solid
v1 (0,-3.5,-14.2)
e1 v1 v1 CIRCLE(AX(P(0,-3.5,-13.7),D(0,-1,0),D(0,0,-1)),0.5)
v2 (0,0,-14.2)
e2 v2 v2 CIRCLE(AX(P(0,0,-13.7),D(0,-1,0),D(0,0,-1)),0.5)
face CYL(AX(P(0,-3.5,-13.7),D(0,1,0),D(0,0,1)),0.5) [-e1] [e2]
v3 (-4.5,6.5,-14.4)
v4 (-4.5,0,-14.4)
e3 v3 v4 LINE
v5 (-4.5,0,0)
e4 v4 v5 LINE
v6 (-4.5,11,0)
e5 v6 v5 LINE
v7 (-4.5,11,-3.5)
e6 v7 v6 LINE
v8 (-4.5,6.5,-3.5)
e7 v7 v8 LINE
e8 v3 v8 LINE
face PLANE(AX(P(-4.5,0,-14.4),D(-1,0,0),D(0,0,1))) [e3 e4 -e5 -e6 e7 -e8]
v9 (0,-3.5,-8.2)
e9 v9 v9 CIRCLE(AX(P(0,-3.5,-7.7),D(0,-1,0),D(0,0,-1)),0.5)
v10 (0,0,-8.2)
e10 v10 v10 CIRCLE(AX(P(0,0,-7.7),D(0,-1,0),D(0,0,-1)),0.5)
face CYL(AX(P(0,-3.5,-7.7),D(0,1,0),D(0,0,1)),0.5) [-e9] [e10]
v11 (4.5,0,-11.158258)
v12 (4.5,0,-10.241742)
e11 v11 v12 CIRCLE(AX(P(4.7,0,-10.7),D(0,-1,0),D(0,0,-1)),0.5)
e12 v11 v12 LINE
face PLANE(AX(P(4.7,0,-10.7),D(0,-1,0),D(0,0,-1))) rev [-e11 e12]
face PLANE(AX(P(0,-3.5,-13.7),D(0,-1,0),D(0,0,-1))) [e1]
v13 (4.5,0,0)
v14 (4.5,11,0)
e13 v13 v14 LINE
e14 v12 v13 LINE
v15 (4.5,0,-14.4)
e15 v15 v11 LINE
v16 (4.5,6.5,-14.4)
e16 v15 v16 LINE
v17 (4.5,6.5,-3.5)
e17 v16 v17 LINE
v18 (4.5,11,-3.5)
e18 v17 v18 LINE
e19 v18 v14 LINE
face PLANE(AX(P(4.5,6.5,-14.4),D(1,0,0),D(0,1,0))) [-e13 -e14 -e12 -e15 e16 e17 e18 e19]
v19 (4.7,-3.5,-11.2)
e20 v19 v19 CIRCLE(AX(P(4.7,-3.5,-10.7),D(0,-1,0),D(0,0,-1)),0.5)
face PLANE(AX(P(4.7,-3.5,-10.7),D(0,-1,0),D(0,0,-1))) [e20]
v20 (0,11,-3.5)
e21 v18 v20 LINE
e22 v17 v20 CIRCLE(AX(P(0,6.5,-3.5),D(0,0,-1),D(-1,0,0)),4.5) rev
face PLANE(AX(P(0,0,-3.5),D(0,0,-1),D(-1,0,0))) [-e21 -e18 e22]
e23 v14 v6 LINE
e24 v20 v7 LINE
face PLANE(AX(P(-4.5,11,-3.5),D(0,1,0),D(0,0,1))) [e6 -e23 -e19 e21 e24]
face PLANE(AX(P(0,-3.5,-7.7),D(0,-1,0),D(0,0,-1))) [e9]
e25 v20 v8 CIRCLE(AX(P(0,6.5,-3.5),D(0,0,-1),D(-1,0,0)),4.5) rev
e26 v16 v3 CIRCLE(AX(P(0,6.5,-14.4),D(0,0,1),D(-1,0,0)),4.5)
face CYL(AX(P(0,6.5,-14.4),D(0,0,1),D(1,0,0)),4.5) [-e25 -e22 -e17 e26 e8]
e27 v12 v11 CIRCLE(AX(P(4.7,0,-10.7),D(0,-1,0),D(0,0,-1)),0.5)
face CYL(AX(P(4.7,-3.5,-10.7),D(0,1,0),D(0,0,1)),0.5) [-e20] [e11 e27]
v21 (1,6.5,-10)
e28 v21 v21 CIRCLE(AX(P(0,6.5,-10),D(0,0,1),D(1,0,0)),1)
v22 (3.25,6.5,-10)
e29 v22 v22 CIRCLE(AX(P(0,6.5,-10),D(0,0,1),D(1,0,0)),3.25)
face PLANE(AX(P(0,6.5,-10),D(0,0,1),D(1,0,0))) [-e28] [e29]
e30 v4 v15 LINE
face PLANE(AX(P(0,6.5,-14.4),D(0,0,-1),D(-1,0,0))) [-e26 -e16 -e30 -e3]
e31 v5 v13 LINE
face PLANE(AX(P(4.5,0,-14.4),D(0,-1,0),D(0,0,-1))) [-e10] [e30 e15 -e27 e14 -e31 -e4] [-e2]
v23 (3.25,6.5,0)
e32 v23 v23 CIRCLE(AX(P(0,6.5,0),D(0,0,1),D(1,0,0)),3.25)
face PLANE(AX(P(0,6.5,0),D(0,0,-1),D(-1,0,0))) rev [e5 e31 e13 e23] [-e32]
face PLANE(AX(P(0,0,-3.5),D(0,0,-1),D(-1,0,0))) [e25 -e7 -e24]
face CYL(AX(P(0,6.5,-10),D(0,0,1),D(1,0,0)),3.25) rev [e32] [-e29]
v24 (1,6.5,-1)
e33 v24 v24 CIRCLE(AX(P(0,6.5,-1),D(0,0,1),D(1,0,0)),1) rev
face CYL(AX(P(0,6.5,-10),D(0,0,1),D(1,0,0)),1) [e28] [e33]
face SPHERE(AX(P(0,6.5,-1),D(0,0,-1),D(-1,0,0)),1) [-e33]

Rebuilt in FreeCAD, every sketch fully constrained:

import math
import FreeCAD as App
import Part
import Sketcher
Q = App.Units.Quantity


def edges_at(feature, points):
    """Names of the edges that pass closest to the given points."""
    edges = feature.Shape.Edges
    near = lambda p: min(range(len(edges)), key=lambda i: edges[i].distToShape(Part.Vertex(*p))[0])
    return sorted({f"Edge{near(p) + 1}" for p in points})


def add_polygon(sketch, points):
    """Adds a closed chain of lines whose ends are joined by coincident constraints."""
    first, n = sketch.GeometryCount, len(points)
    for a, b in zip(points, points[1:] + points[:1]):
        sketch.addGeometry(Part.LineSegment(App.Vector(*a, 0), App.Vector(*b, 0)), False)
    for i in range(n):
        sketch.addConstraint(Sketcher.Constraint("Coincident", first + i, 2, first + (i + 1) % n, 1))

doc = App.newDocument("Part")
body = doc.addObject("PartDesign::Body", "Body")

sketch1 = body.newObject("Sketcher::SketchObject", "Sketch")
sketch1.AttachmentSupport = (doc.getObject("XY_Plane"), [""])
sketch1.MapMode = "FlatFace"
sketch1.addGeometry(Part.LineSegment(App.Vector(-4.5, 0, 0), App.Vector(4.5, 0, 0)), False)
sketch1.addGeometry(Part.LineSegment(App.Vector(4.5, 0, 0), App.Vector(4.5, 6.5, 0)), False)
sketch1.addGeometry(Part.ArcOfCircle(Part.Circle(App.Vector(0, 6.5, 0), App.Vector(0, 0, 1), 4.5), math.radians(0), math.radians(180)), False)
sketch1.addGeometry(Part.LineSegment(App.Vector(-4.5, 6.5, 0), App.Vector(-4.5, 0, 0)), False)
sketch1.addConstraint(Sketcher.Constraint("Coincident", 0, 2, 1, 1))
sketch1.addConstraint(Sketcher.Constraint("Tangent", 1, 2, 2, 1))
sketch1.addConstraint(Sketcher.Constraint("Tangent", 2, 2, 3, 1))
sketch1.addConstraint(Sketcher.Constraint("Coincident", 3, 2, 0, 1))
sketch1.addConstraint(Sketcher.Constraint("Horizontal", 0))
sketch1.addConstraint(Sketcher.Constraint("Vertical", 1))
sketch1.addConstraint(Sketcher.Constraint("Vertical", 3))
sketch1.addConstraint(Sketcher.Constraint("Symmetric", 0, 2, 3, 2, -1, 1))
sketch1.addConstraint(Sketcher.Constraint("Radius", 2, Q("4.5 mm")))
sketch1.addConstraint(Sketcher.Constraint("DistanceY", 1, 1, 1, 2, Q("6.5 mm")))
pad1 = body.newObject("PartDesign::Pad", "Pad")
pad1.Profile = sketch1
pad1.Length = 14.4
pad1.Reversed = True

sketch2 = body.newObject("Sketcher::SketchObject", "Sketch001")
sketch2.AttachmentSupport = (doc.getObject("XY_Plane"), [""])
sketch2.MapMode = "FlatFace"
add_polygon(sketch2, [(-4.5, 11), (-4.5, 6.5), (4.5, 6.5), (4.5, 11)])
sketch2.addConstraint(Sketcher.Constraint("Vertical", 0))
sketch2.addConstraint(Sketcher.Constraint("Horizontal", 1))
sketch2.addConstraint(Sketcher.Constraint("Vertical", 2))
sketch2.addConstraint(Sketcher.Constraint("Horizontal", 3))
sketch2.addConstraint(Sketcher.Constraint("DistanceX", 1, 1, 1, 2, Q("9 mm")))
sketch2.addConstraint(Sketcher.Constraint("DistanceY", 0, 2, 0, 1, Q("4.5 mm")))
sketch2.addConstraint(Sketcher.Constraint("DistanceY", -1, 1, 2, 2, Q("11 mm")))
sketch2.addConstraint(Sketcher.Constraint("DistanceX", 0, 2, -1, 1, Q("4.5 mm")))
pad2 = body.newObject("PartDesign::Pad", "Pad001")
pad2.Profile = sketch2
pad2.Length = 3.5
pad2.Reversed = True

sketch3 = body.newObject("Sketcher::SketchObject", "Sketch002")
sketch3.AttachmentSupport = (doc.getObject("XY_Plane"), [""])
sketch3.MapMode = "FlatFace"
sketch3.addGeometry(Part.Circle(App.Vector(0, 6.5, 0), App.Vector(0, 0, 1), 3.2), False)
sketch3.addGeometry(Part.Circle(App.Vector(0, 6.5, 0), App.Vector(0, 0, 1), 1), False)
sketch3.addConstraint(Sketcher.Constraint("Coincident", 1, 3, 0, 3))
sketch3.addConstraint(Sketcher.Constraint("PointOnObject", 0, 3, -2))
sketch3.addConstraint(Sketcher.Constraint("Diameter", 1, Q("2 mm")))
sketch3.addConstraint(Sketcher.Constraint("Diameter", 0, Q("6.5 mm")))
sketch3.addConstraint(Sketcher.Constraint("DistanceY", -1, 1, 0, 3, Q("6.5 mm")))
pocket1 = body.newObject("PartDesign::Pocket", "Pocket")
pocket1.Profile = sketch3
pocket1.Length = 10
doc.recompute()

fillet = body.newObject("PartDesign::Fillet", "Fillet")
fillet.Base = (pocket1, edges_at(pocket1, [(-1, 6.5, 0)]))
fillet.Radius = 1

sketch4 = body.newObject("Sketcher::SketchObject", "Sketch003")
sketch4.AttachmentSupport = (doc.getObject("XZ_Plane"), [""])
sketch4.MapMode = "FlatFace"
sketch4.addGeometry(Part.Circle(App.Vector(0, -13.7, 0), App.Vector(0, 0, 1), 0.5), False)
sketch4.addGeometry(Part.Circle(App.Vector(0, -7.7, 0), App.Vector(0, 0, 1), 0.5), False)
sketch4.addGeometry(Part.Circle(App.Vector(4.7, -10.7, 0), App.Vector(0, 0, 1), 0.5), False)
sketch4.addConstraint(Sketcher.Constraint("Equal", 0, 1))
sketch4.addConstraint(Sketcher.Constraint("Equal", 1, 2))
sketch4.addConstraint(Sketcher.Constraint("PointOnObject", 0, 3, -2))
sketch4.addConstraint(Sketcher.Constraint("PointOnObject", 1, 3, -2))
sketch4.addConstraint(Sketcher.Constraint("Diameter", 0, Q("1 mm")))
sketch4.addConstraint(Sketcher.Constraint("DistanceY", 0, 3, 1, 3, Q("6 mm")))
sketch4.addConstraint(Sketcher.Constraint("DistanceY", 2, 3, 1, 3, Q("3 mm")))
sketch4.addConstraint(Sketcher.Constraint("DistanceY", 0, 3, -1, 1, Q("13.7 mm")))
sketch4.addConstraint(Sketcher.Constraint("DistanceX", -1, 1, 2, 3, Q("4.7 mm")))
pad3 = body.newObject("PartDesign::Pad", "Pad002")
pad3.Profile = sketch4
pad3.Length = 3.5

doc.recompute()
